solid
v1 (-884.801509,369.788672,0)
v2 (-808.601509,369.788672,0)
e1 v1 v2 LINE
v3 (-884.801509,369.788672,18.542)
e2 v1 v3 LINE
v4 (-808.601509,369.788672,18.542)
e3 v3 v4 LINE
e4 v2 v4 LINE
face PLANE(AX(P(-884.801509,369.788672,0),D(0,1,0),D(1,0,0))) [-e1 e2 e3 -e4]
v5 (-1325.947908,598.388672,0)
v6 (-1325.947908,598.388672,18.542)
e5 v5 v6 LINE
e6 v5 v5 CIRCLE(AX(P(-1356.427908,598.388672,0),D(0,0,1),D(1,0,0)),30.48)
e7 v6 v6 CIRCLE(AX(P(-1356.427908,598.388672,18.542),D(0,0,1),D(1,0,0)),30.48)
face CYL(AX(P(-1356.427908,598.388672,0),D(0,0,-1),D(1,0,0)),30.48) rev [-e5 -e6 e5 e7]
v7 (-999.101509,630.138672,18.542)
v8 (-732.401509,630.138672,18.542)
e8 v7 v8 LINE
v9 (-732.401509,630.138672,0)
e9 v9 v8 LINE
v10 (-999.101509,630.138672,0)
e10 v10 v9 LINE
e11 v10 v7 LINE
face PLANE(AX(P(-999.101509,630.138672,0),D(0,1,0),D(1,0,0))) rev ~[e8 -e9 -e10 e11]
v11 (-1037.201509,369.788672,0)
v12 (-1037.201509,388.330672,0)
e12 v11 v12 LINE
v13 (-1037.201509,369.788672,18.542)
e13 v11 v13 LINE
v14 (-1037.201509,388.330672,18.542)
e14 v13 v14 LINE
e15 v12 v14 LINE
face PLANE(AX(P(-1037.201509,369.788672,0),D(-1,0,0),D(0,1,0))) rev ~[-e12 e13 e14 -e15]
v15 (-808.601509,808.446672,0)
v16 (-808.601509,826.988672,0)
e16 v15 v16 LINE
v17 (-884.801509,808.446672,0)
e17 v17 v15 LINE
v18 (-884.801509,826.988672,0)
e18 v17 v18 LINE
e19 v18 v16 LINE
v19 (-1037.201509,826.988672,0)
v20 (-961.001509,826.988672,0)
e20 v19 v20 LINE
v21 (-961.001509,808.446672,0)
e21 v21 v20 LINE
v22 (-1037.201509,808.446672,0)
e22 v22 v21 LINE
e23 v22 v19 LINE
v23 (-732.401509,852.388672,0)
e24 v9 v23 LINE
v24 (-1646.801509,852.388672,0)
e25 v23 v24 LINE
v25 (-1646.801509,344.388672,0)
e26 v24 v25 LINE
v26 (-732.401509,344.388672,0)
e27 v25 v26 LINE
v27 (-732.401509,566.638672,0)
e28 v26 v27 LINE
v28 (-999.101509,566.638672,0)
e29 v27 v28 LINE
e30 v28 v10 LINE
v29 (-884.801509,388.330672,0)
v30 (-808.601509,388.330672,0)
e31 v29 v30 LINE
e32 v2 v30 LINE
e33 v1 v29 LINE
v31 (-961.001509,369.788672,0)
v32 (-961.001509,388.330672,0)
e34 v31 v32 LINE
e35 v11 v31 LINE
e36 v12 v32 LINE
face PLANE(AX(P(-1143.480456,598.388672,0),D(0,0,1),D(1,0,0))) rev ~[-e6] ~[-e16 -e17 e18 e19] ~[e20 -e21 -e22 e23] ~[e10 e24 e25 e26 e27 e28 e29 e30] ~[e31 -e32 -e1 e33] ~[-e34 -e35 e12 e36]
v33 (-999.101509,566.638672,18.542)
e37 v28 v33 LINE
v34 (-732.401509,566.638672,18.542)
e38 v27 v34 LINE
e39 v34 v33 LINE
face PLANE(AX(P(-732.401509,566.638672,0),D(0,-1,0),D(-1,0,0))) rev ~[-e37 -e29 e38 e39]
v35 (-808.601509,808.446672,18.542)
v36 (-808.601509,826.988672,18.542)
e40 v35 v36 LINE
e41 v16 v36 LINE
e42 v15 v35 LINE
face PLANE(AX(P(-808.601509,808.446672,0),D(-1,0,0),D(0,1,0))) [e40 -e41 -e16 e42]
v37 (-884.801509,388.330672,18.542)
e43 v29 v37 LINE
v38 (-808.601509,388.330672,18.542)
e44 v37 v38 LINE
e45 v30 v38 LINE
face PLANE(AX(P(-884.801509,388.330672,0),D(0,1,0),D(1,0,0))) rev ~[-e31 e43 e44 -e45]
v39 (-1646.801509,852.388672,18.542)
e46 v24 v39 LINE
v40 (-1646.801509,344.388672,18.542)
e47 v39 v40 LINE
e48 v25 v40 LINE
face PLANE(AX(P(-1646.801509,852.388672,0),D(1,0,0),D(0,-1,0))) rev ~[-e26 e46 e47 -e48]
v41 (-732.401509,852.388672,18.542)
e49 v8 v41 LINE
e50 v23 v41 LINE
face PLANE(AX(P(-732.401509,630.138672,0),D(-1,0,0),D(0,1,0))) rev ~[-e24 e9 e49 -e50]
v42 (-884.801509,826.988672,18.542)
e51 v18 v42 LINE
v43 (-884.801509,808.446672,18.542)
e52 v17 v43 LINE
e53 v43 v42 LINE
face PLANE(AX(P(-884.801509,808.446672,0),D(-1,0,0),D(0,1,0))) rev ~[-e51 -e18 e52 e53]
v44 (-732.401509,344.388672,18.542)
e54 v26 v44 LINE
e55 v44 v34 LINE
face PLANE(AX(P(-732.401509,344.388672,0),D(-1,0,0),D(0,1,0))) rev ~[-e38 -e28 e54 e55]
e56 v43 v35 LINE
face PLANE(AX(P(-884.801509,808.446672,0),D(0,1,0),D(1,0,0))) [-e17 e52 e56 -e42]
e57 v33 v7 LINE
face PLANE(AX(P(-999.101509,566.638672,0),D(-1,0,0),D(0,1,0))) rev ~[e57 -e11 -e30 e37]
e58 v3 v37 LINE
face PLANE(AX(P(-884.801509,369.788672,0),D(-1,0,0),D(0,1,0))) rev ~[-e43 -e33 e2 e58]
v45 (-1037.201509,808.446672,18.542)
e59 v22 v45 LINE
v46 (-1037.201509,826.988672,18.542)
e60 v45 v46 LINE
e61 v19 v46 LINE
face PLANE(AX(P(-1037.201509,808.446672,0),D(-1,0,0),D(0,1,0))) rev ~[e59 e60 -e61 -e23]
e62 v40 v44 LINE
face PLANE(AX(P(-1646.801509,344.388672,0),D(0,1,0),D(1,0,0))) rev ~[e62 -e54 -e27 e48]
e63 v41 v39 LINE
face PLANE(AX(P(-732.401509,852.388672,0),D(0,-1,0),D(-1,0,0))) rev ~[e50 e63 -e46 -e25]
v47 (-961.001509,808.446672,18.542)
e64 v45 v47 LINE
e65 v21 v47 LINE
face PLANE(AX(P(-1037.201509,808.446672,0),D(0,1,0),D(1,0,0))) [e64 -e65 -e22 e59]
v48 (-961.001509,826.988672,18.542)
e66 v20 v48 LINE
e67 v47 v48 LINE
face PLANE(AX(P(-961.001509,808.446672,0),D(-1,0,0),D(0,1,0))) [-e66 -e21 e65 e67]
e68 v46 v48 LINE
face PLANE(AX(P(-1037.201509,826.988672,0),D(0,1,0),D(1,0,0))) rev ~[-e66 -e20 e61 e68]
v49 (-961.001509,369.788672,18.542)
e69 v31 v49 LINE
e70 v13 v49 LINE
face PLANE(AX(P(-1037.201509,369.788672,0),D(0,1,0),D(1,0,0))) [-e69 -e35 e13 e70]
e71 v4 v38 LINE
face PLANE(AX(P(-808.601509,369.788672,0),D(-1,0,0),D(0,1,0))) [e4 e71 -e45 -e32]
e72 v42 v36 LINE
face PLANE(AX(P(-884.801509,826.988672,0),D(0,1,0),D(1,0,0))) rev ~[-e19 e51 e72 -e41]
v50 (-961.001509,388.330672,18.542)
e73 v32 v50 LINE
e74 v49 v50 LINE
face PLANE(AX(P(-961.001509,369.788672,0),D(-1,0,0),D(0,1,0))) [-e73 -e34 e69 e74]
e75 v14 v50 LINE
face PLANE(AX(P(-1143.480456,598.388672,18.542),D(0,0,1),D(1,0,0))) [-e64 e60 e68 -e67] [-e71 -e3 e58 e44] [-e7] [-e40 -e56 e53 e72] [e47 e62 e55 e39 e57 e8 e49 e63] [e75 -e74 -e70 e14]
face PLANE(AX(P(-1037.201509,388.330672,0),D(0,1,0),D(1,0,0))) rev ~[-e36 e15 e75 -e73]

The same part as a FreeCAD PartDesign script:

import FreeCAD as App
import Part
import Sketcher

V = App.Vector
Q = App.Units.Quantity


def add_polygon(sketch, points):
    """Adds a closed chain of lines whose ends are joined by coincident constraints."""
    first, n = sketch.GeometryCount, len(points)
    for a, b in zip(points, points[1:] + points[:1]):
        sketch.addGeometry(Part.LineSegment(App.Vector(*a, 0), App.Vector(*b, 0)), False)
    for i in range(n):
        sketch.addConstraint(Sketcher.Constraint("Coincident", first + i, 2, first + (i + 1) % n, 1))

doc = App.newDocument("Part")
body = doc.addObject("PartDesign::Body", "Body")

# Sketch on XY plane
sketch1 = doc.addObject("Sketcher::SketchObject", "Sketch")
body.addObject(sketch1)
sketch1.AttachmentSupport = (doc.XY_Plane, [""])
sketch1.MapMode = "FlatFace"
add_polygon(sketch1, [(-732, 852), (-1647, 852), (-1647, 344), (-732, 344), (-732, 567), (-999, 567), (-999, 630), (-732, 630)])  # lines 0-7
sketch1.addGeometry(Part.Circle(V(-1356, 598, 0), V(0, 0, 1), 30), False)  # 8
add_polygon(sketch1, [(-961, 370), (-1037, 370), (-1037, 388), (-961, 388)])  # lines 9-12
add_polygon(sketch1, [(-809, 370), (-885, 370), (-885, 388), (-809, 388)])  # lines 13-16
add_polygon(sketch1, [(-961, 808), (-1037, 808), (-1037, 827), (-961, 827)])  # lines 17-20
add_polygon(sketch1, [(-809, 808), (-885, 808), (-885, 827), (-809, 827)])  # lines 21-24
sketch1.addConstraint(Sketcher.Constraint("Horizontal", 0))
sketch1.addConstraint(Sketcher.Constraint("Vertical", 1))
sketch1.addConstraint(Sketcher.Constraint("Horizontal", 2))
sketch1.addConstraint(Sketcher.Constraint("Vertical", 3))
sketch1.addConstraint(Sketcher.Constraint("Horizontal", 4))
sketch1.addConstraint(Sketcher.Constraint("Vertical", 5))
sketch1.addConstraint(Sketcher.Constraint("Horizontal", 6))
sketch1.addConstraint(Sketcher.Constraint("Vertical", 7))
sketch1.addConstraint(Sketcher.Constraint("Horizontal", 9))
sketch1.addConstraint(Sketcher.Constraint("Vertical", 10))
sketch1.addConstraint(Sketcher.Constraint("Horizontal", 11))
sketch1.addConstraint(Sketcher.Constraint("Vertical", 12))
sketch1.addConstraint(Sketcher.Constraint("Horizontal", 13))
sketch1.addConstraint(Sketcher.Constraint("Vertical", 14))
sketch1.addConstraint(Sketcher.Constraint("Horizontal", 15))
sketch1.addConstraint(Sketcher.Constraint("Vertical", 16))
sketch1.addConstraint(Sketcher.Constraint("Horizontal", 17))
sketch1.addConstraint(Sketcher.Constraint("Vertical", 18))
sketch1.addConstraint(Sketcher.Constraint("Horizontal", 19))
sketch1.addConstraint(Sketcher.Constraint("Vertical", 20))
sketch1.addConstraint(Sketcher.Constraint("Horizontal", 21))
sketch1.addConstraint(Sketcher.Constraint("Vertical", 22))
sketch1.addConstraint(Sketcher.Constraint("Horizontal", 23))
sketch1.addConstraint(Sketcher.Constraint("Vertical", 24))
sketch1.addConstraint(Sketcher.Constraint("Horizontal", 12, 2, 13, 2))
sketch1.addConstraint(Sketcher.Constraint("Horizontal", 11, 2, 14, 2))
sketch1.addConstraint(Sketcher.Constraint("Horizontal", 20, 2, 21, 2))
sketch1.addConstraint(Sketcher.Constraint("Horizontal", 19, 2, 22, 2))
sketch1.addConstraint(Sketcher.Constraint("Vertical", 3, 2, 6, 2))
sketch1.addConstraint(Sketcher.Constraint("Vertical", 10, 2, 17, 2))
sketch1.addConstraint(Sketcher.Constraint("Vertical", 12, 2, 19, 2))
sketch1.addConstraint(Sketcher.Constraint("Vertical", 14, 2, 21, 2))
sketch1.addConstraint(Sketcher.Constraint("Vertical", 16, 2, 23, 2))
sketch1.addConstraint(Sketcher.Constraint("Equal", 11, 13))
sketch1.addConstraint(Sketcher.Constraint("Equal", 3, 7))
sketch1.addConstraint(Sketcher.Constraint("Equal", 16, 18))
sketch1.addConstraint(Sketcher.Constraint("Diameter", 8, Q("2.4 in")))
sketch1.addConstraint(Sketcher.Constraint("DistanceX", 0, 2, 0, 1, Q("36 in")))
sketch1.addConstraint(Sketcher.Constraint("DistanceX", 9, 2, 9, 1, Q("3 in")))
sketch1.addConstraint(Sketcher.Constraint("DistanceY", 1, 2, 1, 1, Q("20 in")))
sketch1.addConstraint(Sketcher.Constraint("DistanceX", 4, 2, 4, 1, Q("10.5 in")))
sketch1.addConstraint(Sketcher.Constraint("DistanceY", 5, 1, 5, 2, Q("2.5 in")))
sketch1.addConstraint(Sketcher.Constraint("DistanceY", 8, 3, 0, 2, Q("10 in")))
sketch1.addConstraint(Sketcher.Constraint("DistanceX", 9, 2, 2, 2, Q("12 in")))
sketch1.addConstraint(Sketcher.Constraint("DistanceY", 2, 2, 9, 2, Q("1 in")))
sketch1.addConstraint(Sketcher.Constraint("DistanceX", 12, 2, 13, 2, Q("3 in")))
sketch1.addConstraint(Sketcher.Constraint("DistanceY", 18, 2, 7, 2, Q("1 in")))
sketch1.addConstraint(Sketcher.Constraint("DistanceY", 10, 1, 10, 2, Q("0.73 in")))
sketch1.addConstraint(Sketcher.Constraint("DistanceX", 0, 2, 8, 3, 290.373601))
sketch1.addConstraint(Sketcher.Constraint("DistanceX", 0, 2, -1, 1, 1646.801509))
sketch1.addConstraint(Sketcher.Constraint("DistanceY", -1, 1, 8, 3, 598.388672))
pad1 = doc.addObject("PartDesign::Pad", "Pad")
body.addObject(pad1)
pad1.Profile = sketch1
pad1.Length = Q("0.73 in")

# Sketch on XY plane
sketch2 = doc.addObject("Sketcher::SketchObject", "Sketch001")
body.addObject(sketch2)
sketch2.AttachmentSupport = (doc.XY_Plane, [""])
sketch2.MapMode = "FlatFace"
add_polygon(sketch2, [(-732, 852), (-1647, 852), (-1647, 344), (-732, 344), (-732, 567), (-999, 567), (-999, 630), (-732, 630)])  # lines 0-7
sketch2.addGeometry(Part.Circle(V(-1356, 598, 0), V(0, 0, 1), 30), False)  # 8
add_polygon(sketch2, [(-961, 370), (-1037, 370), (-1037, 388), (-961, 388)])  # lines 9-12
add_polygon(sketch2, [(-809, 370), (-885, 370), (-885, 388), (-809, 388)])  # lines 13-16
add_polygon(sketch2, [(-961, 808), (-1037, 808), (-1037, 827), (-961, 827)])  # lines 17-20
add_polygon(sketch2, [(-809, 808), (-885, 808), (-885, 827), (-809, 827)])  # lines 21-24
sketch2.addConstraint(Sketcher.Constraint("Horizontal", 0))
sketch2.addConstraint(Sketcher.Constraint("Vertical", 1))
sketch2.addConstraint(Sketcher.Constraint("Horizontal", 2))
sketch2.addConstraint(Sketcher.Constraint("Vertical", 3))
sketch2.addConstraint(Sketcher.Constraint("Horizontal", 4))
sketch2.addConstraint(Sketcher.Constraint("Vertical", 5))
sketch2.addConstraint(Sketcher.Constraint("Horizontal", 6))
sketch2.addConstraint(Sketcher.Constraint("Vertical", 7))
sketch2.addConstraint(Sketcher.Constraint("Horizontal", 9))
sketch2.addConstraint(Sketcher.Constraint("Vertical", 10))
sketch2.addConstraint(Sketcher.Constraint("Horizontal", 11))
sketch2.addConstraint(Sketcher.Constraint("Vertical", 12))
sketch2.addConstraint(Sketcher.Constraint("Horizontal", 13))
sketch2.addConstraint(Sketcher.Constraint("Vertical", 14))
sketch2.addConstraint(Sketcher.Constraint("Horizontal", 15))
sketch2.addConstraint(Sketcher.Constraint("Vertical", 16))
sketch2.addConstraint(Sketcher.Constraint("Horizontal", 17))
sketch2.addConstraint(Sketcher.Constraint("Vertical", 18))
sketch2.addConstraint(Sketcher.Constraint("Horizontal", 19))
sketch2.addConstraint(Sketcher.Constraint("Vertical", 20))
sketch2.addConstraint(Sketcher.Constraint("Horizontal", 21))
sketch2.addConstraint(Sketcher.Constraint("Vertical", 22))
sketch2.addConstraint(Sketcher.Constraint("Horizontal", 23))
sketch2.addConstraint(Sketcher.Constraint("Vertical", 24))
sketch2.addConstraint(Sketcher.Constraint("Horizontal", 12, 2, 13, 2))
sketch2.addConstraint(Sketcher.Constraint("Horizontal", 11, 2, 14, 2))
sketch2.addConstraint(Sketcher.Constraint("Horizontal", 20, 2, 21, 2))
sketch2.addConstraint(Sketcher.Constraint("Horizontal", 19, 2, 22, 2))
sketch2.addConstraint(Sketcher.Constraint("Vertical", 3, 2, 6, 2))
sketch2.addConstraint(Sketcher.Constraint("Vertical", 10, 2, 17, 2))
sketch2.addConstraint(Sketcher.Constraint("Vertical", 12, 2, 19, 2))
sketch2.addConstraint(Sketcher.Constraint("Vertical", 14, 2, 21, 2))
sketch2.addConstraint(Sketcher.Constraint("Vertical", 16, 2, 23, 2))
sketch2.addConstraint(Sketcher.Constraint("Equal", 11, 13))
sketch2.addConstraint(Sketcher.Constraint("Equal", 3, 7))
sketch2.addConstraint(Sketcher.Constraint("Equal", 16, 18))
sketch2.addConstraint(Sketcher.Constraint("Diameter", 8, Q("2.4 in")))
sketch2.addConstraint(Sketcher.Constraint("DistanceX", 0, 2, 0, 1, Q("36 in")))
sketch2.addConstraint(Sketcher.Constraint("DistanceX", 9, 2, 9, 1, Q("3 in")))
sketch2.addConstraint(Sketcher.Constraint("DistanceY", 1, 2, 1, 1, Q("20 in")))
sketch2.addConstraint(Sketcher.Constraint("DistanceX", 4, 2, 4, 1, Q("10.5 in")))
sketch2.addConstraint(Sketcher.Constraint("DistanceY", 5, 1, 5, 2, Q("2.5 in")))
sketch2.addConstraint(Sketcher.Constraint("DistanceY", 8, 3, 0, 2, Q("10 in")))
sketch2.addConstraint(Sketcher.Constraint("DistanceX", 9, 2, 2, 2, Q("12 in")))
sketch2.addConstraint(Sketcher.Constraint("DistanceY", 2, 2, 9, 2, Q("1 in")))
sketch2.addConstraint(Sketcher.Constraint("DistanceX", 12, 2, 13, 2, Q("3 in")))
sketch2.addConstraint(Sketcher.Constraint("DistanceY", 18, 2, 7, 2, Q("1 in")))
sketch2.addConstraint(Sketcher.Constraint("DistanceY", 10, 1, 10, 2, Q("0.73 in")))
sketch2.addConstraint(Sketcher.Constraint("DistanceX", 0, 2, 8, 3, 290.373601))
sketch2.addConstraint(Sketcher.Constraint("DistanceX", 0, 2, -1, 1, 1646.801509))
sketch2.addConstraint(Sketcher.Constraint("DistanceY", -1, 1, 8, 3, 598.388672))
pad2 = doc.addObject("PartDesign::Pad", "Pad001")
body.addObject(pad2)
pad2.Profile = sketch2
pad2.Length = Q("0.73 in")

doc.recompute()
